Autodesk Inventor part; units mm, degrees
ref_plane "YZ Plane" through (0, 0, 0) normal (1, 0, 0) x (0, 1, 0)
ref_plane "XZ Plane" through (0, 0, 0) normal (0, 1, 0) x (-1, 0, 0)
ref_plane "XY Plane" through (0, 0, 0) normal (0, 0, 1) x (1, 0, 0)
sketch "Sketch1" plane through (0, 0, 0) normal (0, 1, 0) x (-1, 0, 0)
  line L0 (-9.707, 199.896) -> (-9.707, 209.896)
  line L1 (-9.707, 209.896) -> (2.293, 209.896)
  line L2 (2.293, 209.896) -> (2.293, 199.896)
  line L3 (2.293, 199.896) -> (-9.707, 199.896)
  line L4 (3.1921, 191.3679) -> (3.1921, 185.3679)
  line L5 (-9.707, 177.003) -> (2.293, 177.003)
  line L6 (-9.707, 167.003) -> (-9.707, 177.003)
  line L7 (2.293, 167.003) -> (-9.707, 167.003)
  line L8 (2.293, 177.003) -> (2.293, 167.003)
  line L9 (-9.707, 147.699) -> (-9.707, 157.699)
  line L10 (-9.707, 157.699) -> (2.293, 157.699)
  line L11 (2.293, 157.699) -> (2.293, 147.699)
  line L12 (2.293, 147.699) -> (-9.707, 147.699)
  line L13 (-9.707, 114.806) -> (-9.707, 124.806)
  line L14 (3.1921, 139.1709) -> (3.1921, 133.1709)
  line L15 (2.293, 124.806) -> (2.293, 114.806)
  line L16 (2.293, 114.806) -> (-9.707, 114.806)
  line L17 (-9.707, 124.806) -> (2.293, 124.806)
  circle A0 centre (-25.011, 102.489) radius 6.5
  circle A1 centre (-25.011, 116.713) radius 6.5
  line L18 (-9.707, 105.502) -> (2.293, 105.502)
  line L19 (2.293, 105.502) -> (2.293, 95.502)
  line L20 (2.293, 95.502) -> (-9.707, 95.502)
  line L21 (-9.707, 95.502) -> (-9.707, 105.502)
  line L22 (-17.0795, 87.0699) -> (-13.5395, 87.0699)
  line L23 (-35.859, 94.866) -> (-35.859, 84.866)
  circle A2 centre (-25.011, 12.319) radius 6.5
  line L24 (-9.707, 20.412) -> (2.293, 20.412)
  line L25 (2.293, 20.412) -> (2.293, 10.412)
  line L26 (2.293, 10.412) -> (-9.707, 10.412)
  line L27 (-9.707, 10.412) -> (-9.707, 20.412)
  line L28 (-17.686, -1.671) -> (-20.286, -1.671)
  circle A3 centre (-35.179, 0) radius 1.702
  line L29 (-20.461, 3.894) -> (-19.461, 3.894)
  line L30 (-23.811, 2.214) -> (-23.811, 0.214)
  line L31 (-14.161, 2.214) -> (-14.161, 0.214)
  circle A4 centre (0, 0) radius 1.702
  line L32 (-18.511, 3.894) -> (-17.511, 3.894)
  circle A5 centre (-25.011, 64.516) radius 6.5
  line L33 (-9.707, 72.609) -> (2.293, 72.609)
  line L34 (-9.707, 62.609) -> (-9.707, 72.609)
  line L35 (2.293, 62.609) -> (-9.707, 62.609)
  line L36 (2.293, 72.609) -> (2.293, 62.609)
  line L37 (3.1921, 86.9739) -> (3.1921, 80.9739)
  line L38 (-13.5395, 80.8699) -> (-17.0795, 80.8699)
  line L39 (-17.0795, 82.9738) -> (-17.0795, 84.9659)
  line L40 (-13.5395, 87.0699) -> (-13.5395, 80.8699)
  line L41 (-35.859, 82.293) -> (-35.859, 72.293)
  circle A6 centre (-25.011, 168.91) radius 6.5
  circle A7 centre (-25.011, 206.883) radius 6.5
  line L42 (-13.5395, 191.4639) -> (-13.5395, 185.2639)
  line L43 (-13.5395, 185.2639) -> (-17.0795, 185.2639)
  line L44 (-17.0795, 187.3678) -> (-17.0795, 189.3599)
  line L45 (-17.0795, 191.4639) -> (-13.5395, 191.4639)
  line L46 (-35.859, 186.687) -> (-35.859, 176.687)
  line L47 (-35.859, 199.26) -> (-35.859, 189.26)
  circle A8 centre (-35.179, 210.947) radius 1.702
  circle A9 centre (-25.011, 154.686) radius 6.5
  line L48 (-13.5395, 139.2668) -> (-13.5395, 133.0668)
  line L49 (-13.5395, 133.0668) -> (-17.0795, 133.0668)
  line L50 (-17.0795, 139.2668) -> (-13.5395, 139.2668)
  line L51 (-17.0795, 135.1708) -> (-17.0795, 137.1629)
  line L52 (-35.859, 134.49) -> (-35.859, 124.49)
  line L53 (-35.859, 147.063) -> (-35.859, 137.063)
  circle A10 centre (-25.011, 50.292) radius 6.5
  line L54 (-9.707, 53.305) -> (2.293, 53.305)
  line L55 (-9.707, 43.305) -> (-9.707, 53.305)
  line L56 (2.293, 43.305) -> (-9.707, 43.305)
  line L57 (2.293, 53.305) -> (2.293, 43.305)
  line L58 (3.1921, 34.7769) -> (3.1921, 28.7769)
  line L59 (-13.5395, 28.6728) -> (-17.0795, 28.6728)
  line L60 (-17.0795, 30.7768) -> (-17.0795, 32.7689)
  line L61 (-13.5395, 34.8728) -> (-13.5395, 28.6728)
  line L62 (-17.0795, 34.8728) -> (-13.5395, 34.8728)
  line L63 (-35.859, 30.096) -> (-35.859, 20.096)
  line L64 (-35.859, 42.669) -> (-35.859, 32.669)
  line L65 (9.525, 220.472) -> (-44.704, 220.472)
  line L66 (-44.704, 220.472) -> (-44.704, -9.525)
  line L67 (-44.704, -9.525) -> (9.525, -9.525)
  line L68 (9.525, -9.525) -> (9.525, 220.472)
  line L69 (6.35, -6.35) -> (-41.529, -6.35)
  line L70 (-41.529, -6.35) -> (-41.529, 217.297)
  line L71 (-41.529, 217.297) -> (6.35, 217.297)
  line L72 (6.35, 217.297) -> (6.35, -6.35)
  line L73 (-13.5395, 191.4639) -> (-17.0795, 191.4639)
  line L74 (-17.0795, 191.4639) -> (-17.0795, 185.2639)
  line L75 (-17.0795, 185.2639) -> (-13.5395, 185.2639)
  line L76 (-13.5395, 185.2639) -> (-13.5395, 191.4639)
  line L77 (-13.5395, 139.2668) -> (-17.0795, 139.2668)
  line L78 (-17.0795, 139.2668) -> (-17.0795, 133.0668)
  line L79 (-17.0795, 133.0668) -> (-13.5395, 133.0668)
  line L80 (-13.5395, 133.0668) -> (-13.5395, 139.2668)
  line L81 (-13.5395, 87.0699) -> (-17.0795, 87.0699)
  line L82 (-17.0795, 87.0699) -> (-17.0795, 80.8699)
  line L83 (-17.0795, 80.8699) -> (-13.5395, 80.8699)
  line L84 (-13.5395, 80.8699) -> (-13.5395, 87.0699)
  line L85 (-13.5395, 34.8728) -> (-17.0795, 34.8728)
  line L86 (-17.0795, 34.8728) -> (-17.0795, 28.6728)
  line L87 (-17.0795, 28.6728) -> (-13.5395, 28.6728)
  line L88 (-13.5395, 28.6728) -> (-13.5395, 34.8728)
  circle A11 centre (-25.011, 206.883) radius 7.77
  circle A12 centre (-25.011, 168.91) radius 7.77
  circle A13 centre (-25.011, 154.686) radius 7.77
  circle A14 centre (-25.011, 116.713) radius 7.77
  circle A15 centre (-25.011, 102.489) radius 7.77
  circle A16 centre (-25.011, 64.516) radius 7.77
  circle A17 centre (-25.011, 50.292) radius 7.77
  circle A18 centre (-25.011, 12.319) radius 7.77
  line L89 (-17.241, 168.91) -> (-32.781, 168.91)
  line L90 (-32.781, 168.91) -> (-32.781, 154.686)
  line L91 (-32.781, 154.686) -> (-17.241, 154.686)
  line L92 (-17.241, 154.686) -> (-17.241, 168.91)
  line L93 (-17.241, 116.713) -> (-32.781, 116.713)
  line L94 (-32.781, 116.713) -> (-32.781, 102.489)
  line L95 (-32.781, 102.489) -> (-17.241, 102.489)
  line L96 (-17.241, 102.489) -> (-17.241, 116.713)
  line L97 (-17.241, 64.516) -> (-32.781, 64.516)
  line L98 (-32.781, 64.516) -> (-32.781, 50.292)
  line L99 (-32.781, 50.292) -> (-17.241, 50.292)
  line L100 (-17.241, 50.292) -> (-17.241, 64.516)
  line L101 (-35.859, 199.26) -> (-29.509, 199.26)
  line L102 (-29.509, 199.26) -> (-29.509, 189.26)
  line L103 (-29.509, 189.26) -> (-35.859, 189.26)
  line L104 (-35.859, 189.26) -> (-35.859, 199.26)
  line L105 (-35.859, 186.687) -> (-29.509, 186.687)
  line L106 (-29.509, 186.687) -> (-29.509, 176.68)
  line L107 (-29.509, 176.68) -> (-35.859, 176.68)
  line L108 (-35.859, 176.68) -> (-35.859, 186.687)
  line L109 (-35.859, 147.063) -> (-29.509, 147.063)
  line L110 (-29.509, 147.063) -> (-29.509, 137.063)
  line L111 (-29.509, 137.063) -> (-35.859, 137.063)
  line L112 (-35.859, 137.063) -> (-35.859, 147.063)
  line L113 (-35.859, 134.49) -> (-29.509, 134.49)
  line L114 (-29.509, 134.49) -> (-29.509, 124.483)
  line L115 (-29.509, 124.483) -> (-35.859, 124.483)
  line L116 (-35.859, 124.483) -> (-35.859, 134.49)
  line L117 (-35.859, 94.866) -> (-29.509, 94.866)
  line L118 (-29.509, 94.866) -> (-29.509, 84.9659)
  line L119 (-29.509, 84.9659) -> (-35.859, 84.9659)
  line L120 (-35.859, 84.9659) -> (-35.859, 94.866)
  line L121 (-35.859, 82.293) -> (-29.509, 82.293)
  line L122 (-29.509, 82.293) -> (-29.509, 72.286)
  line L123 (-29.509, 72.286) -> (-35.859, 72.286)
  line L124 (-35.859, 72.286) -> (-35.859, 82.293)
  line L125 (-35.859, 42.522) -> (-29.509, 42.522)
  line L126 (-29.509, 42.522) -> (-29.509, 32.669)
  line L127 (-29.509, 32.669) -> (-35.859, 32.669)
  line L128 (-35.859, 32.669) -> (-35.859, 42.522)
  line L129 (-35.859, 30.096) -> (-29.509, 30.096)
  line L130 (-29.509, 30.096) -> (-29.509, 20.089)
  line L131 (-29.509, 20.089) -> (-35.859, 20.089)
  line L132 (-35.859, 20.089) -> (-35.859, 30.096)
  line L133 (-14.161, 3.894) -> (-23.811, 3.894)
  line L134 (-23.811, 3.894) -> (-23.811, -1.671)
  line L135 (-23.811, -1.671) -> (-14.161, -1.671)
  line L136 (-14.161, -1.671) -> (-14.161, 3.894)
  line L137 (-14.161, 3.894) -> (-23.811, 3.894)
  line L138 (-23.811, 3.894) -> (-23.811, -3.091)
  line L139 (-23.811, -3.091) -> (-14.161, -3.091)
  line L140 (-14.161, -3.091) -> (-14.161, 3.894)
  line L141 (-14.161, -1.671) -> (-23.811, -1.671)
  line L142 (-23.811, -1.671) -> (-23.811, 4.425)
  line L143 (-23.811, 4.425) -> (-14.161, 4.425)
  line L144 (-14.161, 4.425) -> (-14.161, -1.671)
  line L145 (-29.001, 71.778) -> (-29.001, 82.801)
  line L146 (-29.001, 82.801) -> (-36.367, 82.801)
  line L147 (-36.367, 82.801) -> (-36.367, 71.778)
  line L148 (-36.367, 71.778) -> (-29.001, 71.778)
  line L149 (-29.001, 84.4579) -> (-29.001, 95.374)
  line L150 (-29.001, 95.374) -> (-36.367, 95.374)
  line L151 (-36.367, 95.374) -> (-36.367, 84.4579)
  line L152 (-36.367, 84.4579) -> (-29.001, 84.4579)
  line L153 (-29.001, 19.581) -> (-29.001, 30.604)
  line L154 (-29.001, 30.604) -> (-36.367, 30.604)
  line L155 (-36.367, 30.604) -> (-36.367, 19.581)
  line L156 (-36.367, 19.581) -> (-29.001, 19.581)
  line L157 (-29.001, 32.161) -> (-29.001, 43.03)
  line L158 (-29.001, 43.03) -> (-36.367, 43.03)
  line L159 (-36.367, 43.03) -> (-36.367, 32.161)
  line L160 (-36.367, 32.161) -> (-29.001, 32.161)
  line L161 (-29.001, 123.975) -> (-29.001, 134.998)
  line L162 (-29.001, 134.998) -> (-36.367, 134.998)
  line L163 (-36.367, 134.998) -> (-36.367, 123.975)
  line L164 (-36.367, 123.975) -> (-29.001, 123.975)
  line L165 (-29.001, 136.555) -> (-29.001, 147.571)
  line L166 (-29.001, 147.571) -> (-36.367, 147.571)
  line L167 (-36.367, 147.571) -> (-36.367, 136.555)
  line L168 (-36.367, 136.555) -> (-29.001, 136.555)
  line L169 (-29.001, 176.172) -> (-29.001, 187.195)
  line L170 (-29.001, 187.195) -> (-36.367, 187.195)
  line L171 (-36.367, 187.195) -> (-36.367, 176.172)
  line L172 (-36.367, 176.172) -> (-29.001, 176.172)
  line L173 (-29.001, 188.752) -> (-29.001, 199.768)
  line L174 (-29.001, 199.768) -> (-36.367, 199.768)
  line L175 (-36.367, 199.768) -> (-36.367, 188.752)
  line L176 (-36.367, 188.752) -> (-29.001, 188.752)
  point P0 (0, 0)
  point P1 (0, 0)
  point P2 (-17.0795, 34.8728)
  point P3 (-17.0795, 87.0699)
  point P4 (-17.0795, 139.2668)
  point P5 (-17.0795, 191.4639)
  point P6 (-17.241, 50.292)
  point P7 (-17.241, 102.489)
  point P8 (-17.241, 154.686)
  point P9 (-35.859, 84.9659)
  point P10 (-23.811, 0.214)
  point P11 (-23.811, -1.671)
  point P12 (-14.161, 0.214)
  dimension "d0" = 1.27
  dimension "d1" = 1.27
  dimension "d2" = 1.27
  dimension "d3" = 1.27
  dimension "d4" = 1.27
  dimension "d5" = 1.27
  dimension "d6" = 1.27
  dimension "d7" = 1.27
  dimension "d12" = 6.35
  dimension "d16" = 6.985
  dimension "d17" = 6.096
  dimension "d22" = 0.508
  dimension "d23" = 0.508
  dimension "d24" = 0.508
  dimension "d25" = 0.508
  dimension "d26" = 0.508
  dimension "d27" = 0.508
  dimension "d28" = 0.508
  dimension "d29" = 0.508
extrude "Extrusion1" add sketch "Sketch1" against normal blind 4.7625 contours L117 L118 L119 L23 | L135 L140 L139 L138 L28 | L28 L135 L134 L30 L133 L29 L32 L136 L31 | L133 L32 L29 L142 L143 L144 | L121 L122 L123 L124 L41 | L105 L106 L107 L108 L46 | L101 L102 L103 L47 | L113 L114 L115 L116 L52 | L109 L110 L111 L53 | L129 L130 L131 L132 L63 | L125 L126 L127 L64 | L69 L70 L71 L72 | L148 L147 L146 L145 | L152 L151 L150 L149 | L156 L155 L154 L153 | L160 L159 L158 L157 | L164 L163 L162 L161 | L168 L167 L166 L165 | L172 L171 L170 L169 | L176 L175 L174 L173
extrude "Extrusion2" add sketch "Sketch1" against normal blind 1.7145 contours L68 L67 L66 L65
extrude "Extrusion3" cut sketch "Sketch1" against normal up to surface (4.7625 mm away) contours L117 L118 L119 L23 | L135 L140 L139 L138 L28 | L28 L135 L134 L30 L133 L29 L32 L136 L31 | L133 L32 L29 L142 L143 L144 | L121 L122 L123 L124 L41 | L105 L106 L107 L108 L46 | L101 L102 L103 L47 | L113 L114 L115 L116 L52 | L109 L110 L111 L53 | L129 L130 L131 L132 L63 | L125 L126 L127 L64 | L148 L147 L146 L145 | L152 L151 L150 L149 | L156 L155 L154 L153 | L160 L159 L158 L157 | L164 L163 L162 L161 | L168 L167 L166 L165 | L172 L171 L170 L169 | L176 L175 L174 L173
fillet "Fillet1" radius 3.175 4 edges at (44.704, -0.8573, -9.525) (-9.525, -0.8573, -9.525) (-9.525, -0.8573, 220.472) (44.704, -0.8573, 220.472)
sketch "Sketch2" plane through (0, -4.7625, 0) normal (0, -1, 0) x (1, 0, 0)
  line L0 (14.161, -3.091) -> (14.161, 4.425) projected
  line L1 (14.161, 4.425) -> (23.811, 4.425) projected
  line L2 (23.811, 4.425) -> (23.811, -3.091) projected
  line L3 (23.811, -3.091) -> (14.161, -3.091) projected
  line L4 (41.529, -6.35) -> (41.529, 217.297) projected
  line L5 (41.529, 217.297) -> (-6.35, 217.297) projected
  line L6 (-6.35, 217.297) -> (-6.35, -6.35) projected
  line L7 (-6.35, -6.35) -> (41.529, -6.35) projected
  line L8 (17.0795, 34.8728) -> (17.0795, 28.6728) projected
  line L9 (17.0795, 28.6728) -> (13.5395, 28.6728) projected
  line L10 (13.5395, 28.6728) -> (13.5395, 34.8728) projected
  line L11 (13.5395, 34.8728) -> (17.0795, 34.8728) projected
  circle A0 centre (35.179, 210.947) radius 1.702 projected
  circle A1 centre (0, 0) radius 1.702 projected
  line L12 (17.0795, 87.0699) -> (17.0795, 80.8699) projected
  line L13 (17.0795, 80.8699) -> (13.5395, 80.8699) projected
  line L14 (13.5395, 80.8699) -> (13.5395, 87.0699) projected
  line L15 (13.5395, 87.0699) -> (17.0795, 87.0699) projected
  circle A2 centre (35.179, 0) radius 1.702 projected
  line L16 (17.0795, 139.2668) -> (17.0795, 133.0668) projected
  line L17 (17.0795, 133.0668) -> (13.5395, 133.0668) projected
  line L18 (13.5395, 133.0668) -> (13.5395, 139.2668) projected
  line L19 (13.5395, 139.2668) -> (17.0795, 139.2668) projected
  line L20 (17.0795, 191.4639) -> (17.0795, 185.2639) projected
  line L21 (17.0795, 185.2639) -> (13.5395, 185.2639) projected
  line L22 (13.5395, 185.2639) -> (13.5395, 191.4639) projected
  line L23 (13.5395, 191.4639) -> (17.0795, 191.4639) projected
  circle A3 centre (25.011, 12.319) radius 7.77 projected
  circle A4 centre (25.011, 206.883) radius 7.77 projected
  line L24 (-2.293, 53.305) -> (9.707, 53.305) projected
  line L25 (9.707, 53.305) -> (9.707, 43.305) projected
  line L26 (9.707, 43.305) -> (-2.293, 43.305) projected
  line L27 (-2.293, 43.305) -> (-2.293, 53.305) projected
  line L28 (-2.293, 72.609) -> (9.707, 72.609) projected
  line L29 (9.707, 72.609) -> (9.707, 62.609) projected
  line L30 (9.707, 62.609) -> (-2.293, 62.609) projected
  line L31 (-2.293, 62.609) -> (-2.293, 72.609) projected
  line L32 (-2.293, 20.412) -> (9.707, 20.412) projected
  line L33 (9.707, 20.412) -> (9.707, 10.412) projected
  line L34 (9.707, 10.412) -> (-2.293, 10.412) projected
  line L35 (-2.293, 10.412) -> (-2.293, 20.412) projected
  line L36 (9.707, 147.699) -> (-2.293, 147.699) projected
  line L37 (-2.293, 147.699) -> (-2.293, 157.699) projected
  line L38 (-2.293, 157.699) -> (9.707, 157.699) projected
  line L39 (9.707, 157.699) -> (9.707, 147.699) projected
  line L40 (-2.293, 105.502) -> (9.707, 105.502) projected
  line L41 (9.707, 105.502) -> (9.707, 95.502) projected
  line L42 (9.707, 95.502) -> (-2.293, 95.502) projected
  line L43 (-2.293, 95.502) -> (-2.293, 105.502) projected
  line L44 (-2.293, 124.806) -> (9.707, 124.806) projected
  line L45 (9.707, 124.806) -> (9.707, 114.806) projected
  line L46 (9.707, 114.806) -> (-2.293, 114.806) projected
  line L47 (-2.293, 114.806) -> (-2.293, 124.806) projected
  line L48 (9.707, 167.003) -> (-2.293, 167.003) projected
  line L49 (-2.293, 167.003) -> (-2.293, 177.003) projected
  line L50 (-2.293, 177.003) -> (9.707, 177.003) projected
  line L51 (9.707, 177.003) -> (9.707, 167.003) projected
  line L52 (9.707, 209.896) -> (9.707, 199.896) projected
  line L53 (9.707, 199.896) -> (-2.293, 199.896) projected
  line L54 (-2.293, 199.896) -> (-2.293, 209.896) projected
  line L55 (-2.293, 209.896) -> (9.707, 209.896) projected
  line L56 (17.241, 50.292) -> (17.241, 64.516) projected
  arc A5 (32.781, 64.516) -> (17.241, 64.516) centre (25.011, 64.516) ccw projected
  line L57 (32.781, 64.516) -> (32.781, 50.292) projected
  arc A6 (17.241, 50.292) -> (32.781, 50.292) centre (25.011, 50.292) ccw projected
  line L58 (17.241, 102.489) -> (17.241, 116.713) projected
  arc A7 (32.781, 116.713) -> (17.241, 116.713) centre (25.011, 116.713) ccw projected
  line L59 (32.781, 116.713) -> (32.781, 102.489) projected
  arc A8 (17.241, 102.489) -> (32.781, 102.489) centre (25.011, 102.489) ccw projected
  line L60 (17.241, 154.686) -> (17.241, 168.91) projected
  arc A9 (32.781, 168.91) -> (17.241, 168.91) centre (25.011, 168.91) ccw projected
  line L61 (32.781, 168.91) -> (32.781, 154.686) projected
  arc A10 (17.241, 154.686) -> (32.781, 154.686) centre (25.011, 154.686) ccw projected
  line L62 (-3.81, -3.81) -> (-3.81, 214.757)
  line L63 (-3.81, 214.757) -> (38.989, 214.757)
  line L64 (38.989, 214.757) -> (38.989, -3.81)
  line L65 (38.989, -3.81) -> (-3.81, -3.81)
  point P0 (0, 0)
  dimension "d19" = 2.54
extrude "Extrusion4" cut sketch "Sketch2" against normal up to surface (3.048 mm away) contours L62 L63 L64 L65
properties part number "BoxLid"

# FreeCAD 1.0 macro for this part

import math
import FreeCAD as App
import Part
import Sketcher
from FreeCAD import Vector
Q = App.Units.Quantity


def edges_at(feature, points):
    """Names of the edges that pass closest to the given points."""
    edges = feature.Shape.Edges
    near = lambda p: min(range(len(edges)), key=lambda i: edges[i].distToShape(Part.Vertex(*p))[0])
    return sorted({f"Edge{near(p) + 1}" for p in points})


def add_polygon(sketch, points):
    """Adds a closed chain of lines whose ends are joined by coincident constraints."""
    first, n = sketch.GeometryCount, len(points)
    for a, b in zip(points, points[1:] + points[:1]):
        sketch.addGeometry(Part.LineSegment(App.Vector(*a, 0), App.Vector(*b, 0)), False)
    for i in range(n):
        sketch.addConstraint(Sketcher.Constraint("Coincident", first + i, 2, first + (i + 1) % n, 1))

doc = App.newDocument("Part")
body = doc.addObject("PartDesign::Body", "Body")

# Sketch on XZ plane
sketch1 = body.newObject("Sketcher::SketchObject", "Sketch")
sketch1.AttachmentSupport = (doc.getObject("XZ_Plane"), [""])
sketch1.MapMode = "FlatFace"
add_polygon(sketch1, [(41.529, -6.35), (-6.35, -6.35), (-6.35, 217.297), (41.529, 217.297)])  # lines 0-3
sketch1.addGeometry(Part.Circle(Vector(35.179, 0, 0), Vector(0, 0, 1), 1.702), False)  # 4
sketch1.addGeometry(Part.Circle(Vector(25.011, 12.319, 0), Vector(0, 0, 1), 7.77), False)  # 5
add_polygon(sketch1, [(-2.293, 199.896), (9.707, 199.896), (9.707, 209.896), (-2.293, 209.896)])  # lines 6-9
sketch1.addGeometry(Part.ArcOfCircle(Part.Circle(Vector(25.011, 64.516, 0), Vector(0, 0, 1), 7.77), math.radians(0), math.radians(180)), False)  # 10
sketch1.addGeometry(Part.LineSegment(Vector(17.241, 64.516, 0), Vector(17.241, 50.292, 0)), False)  # 11
sketch1.addGeometry(Part.ArcOfCircle(Part.Circle(Vector(25.011, 50.292, 0), Vector(0, 0, 1), 7.77), math.radians(180), math.radians(360)), False)  # 12
sketch1.addGeometry(Part.LineSegment(Vector(32.781, 50.292, 0), Vector(32.781, 64.516, 0)), False)  # 13
add_polygon(sketch1, [(13.5395, 34.8728), (13.5395, 28.6728), (17.0795, 28.6728), (17.0795, 34.8728)])  # lines 14-17
sketch1.addGeometry(Part.Circle(Vector(0, 0, 0), Vector(0, 0, 1), 1.702), False)  # 18
add_polygon(sketch1, [(9.707, 10.412), (9.707, 20.412), (-2.293, 20.412), (-2.293, 10.412)])  # lines 19-22
add_polygon(sketch1, [(17.0795, 87.0699), (13.5395, 87.0699), (13.5395, 80.8699), (17.0795, 80.8699)])  # lines 23-26
add_polygon(sketch1, [(9.707, 43.305), (9.707, 53.305), (-2.293, 53.305), (-2.293, 43.305)])  # lines 27-30
add_polygon(sketch1, [(9.707, 62.609), (9.707, 72.609), (-2.293, 72.609), (-2.293, 62.609)])  # lines 31-34
add_polygon(sketch1, [(9.707, 95.502), (9.707, 105.502), (-2.293, 105.502), (-2.293, 95.502)])  # lines 35-38
sketch1.addGeometry(Part.LineSegment(Vector(17.241, 116.713, 0), Vector(17.241, 102.489, 0)), False)  # 39
sketch1.addGeometry(Part.ArcOfCircle(Part.Circle(Vector(25.011, 102.489, 0), Vector(0, 0, 1), 7.77), math.radians(180), math.radians(360)), False)  # 40
sketch1.addGeometry(Part.LineSegment(Vector(32.781, 102.489, 0), Vector(32.781, 116.713, 0)), False)  # 41
sketch1.addGeometry(Part.ArcOfCircle(Part.Circle(Vector(25.011, 116.713, 0), Vector(0, 0, 1), 7.77), math.radians(0), math.radians(180)), False)  # 42
sketch1.addGeometry(Part.ArcOfCircle(Part.Circle(Vector(25.011, 168.91, 0), Vector(0, 0, 1), 7.77), math.radians(0), math.radians(180)), False)  # 43
sketch1.addGeometry(Part.LineSegment(Vector(17.241, 168.91, 0), Vector(17.241, 154.686, 0)), False)  # 44
sketch1.addGeometry(Part.ArcOfCircle(Part.Circle(Vector(25.011, 154.686, 0), Vector(0, 0, 1), 7.77), math.radians(180), math.radians(360)), False)  # 45
sketch1.addGeometry(Part.LineSegment(Vector(32.781, 154.686, 0), Vector(32.781, 168.91, 0)), False)  # 46
sketch1.addGeometry(Part.Circle(Vector(35.179, 210.947, 0), Vector(0, 0, 1), 1.702), False)  # 47
sketch1.addGeometry(Part.Circle(Vector(25.011, 206.883, 0), Vector(0, 0, 1), 7.77), False)  # 48
add_polygon(sketch1, [(17.0795, 139.2668), (13.5395, 139.2668), (13.5395, 133.0668), (17.0795, 133.0668)])  # lines 49-52
add_polygon(sketch1, [(-2.293, 114.806), (9.707, 114.806), (9.707, 124.806), (-2.293, 124.806)])  # lines 53-56
add_polygon(sketch1, [(-2.293, 147.699), (9.707, 147.699), (9.707, 157.699), (-2.293, 157.699)])  # lines 57-60
add_polygon(sketch1, [(17.0795, 191.4639), (13.5395, 191.4639), (13.5395, 185.2639), (17.0795, 185.2639)])  # lines 61-64
add_polygon(sketch1, [(9.707, 167.003), (9.707, 177.003), (-2.293, 177.003), (-2.293, 167.003)])  # lines 65-68
sketch1.addConstraint(Sketcher.Constraint("Tangent", 10, 2, 11, 1))
sketch1.addConstraint(Sketcher.Constraint("Tangent", 11, 2, 12, 1))
sketch1.addConstraint(Sketcher.Constraint("Tangent", 12, 2, 13, 1))
sketch1.addConstraint(Sketcher.Constraint("Tangent", 13, 2, 10, 1))
sketch1.addConstraint(Sketcher.Constraint("Tangent", 39, 2, 40, 1))
sketch1.addConstraint(Sketcher.Constraint("Tangent", 40, 2, 41, 1))
sketch1.addConstraint(Sketcher.Constraint("Tangent", 41, 2, 42, 1))
sketch1.addConstraint(Sketcher.Constraint("Tangent", 42, 2, 39, 1))
sketch1.addConstraint(Sketcher.Constraint("Tangent", 43, 2, 44, 1))
sketch1.addConstraint(Sketcher.Constraint("Tangent", 44, 2, 45, 1))
sketch1.addConstraint(Sketcher.Constraint("Tangent", 45, 2, 46, 1))
sketch1.addConstraint(Sketcher.Constraint("Tangent", 46, 2, 43, 1))
sketch1.addConstraint(Sketcher.Constraint("Horizontal", 0))
sketch1.addConstraint(Sketcher.Constraint("Vertical", 1))
sketch1.addConstraint(Sketcher.Constraint("Horizontal", 2))
sketch1.addConstraint(Sketcher.Constraint("Vertical", 3))
sketch1.addConstraint(Sketcher.Constraint("Horizontal", 6))
sketch1.addConstraint(Sketcher.Constraint("Vertical", 7))
sketch1.addConstraint(Sketcher.Constraint("Horizontal", 8))
sketch1.addConstraint(Sketcher.Constraint("Vertical", 9))
sketch1.addConstraint(Sketcher.Constraint("Vertical", 11))
sketch1.addConstraint(Sketcher.Constraint("Vertical", 13))
sketch1.addConstraint(Sketcher.Constraint("Vertical", 14))
sketch1.addConstraint(Sketcher.Constraint("Horizontal", 15))
sketch1.addConstraint(Sketcher.Constraint("Vertical", 16))
sketch1.addConstraint(Sketcher.Constraint("Horizontal", 17))
sketch1.addConstraint(Sketcher.Constraint("Vertical", 19))
sketch1.addConstraint(Sketcher.Constraint("Horizontal", 20))
sketch1.addConstraint(Sketcher.Constraint("Vertical", 21))
sketch1.addConstraint(Sketcher.Constraint("Horizontal", 22))
sketch1.addConstraint(Sketcher.Constraint("Horizontal", 23))
sketch1.addConstraint(Sketcher.Constraint("Vertical", 24))
sketch1.addConstraint(Sketcher.Constraint("Horizontal", 25))
sketch1.addConstraint(Sketcher.Constraint("Vertical", 26))
sketch1.addConstraint(Sketcher.Constraint("Vertical", 27))
sketch1.addConstraint(Sketcher.Constraint("Horizontal", 28))
sketch1.addConstraint(Sketcher.Constraint("Vertical", 29))
sketch1.addConstraint(Sketcher.Constraint("Horizontal", 30))
sketch1.addConstraint(Sketcher.Constraint("Vertical", 31))
sketch1.addConstraint(Sketcher.Constraint("Horizontal", 32))
sketch1.addConstraint(Sketcher.Constraint("Vertical", 33))
sketch1.addConstraint(Sketcher.Constraint("Horizontal", 34))
sketch1.addConstraint(Sketcher.Constraint("Vertical", 35))
sketch1.addConstraint(Sketcher.Constraint("Horizontal", 36))
sketch1.addConstraint(Sketcher.Constraint("Vertical", 37))
sketch1.addConstraint(Sketcher.Constraint("Horizontal", 38))
sketch1.addConstraint(Sketcher.Constraint("Vertical", 39))
sketch1.addConstraint(Sketcher.Constraint("Vertical", 41))
sketch1.addConstraint(Sketcher.Constraint("Vertical", 44))
sketch1.addConstraint(Sketcher.Constraint("Vertical", 46))
sketch1.addConstraint(Sketcher.Constraint("Horizontal", 49))
sketch1.addConstraint(Sketcher.Constraint("Vertical", 50))
sketch1.addConstraint(Sketcher.Constraint("Horizontal", 51))
sketch1.addConstraint(Sketcher.Constraint("Vertical", 52))
sketch1.addConstraint(Sketcher.Constraint("Horizontal", 53))
sketch1.addConstraint(Sketcher.Constraint("Vertical", 54))
sketch1.addConstraint(Sketcher.Constraint("Horizontal", 55))
sketch1.addConstraint(Sketcher.Constraint("Vertical", 56))
sketch1.addConstraint(Sketcher.Constraint("Horizontal", 57))
sketch1.addConstraint(Sketcher.Constraint("Vertical", 58))
sketch1.addConstraint(Sketcher.Constraint("Horizontal", 59))
sketch1.addConstraint(Sketcher.Constraint("Vertical", 60))
sketch1.addConstraint(Sketcher.Constraint("Horizontal", 61))
sketch1.addConstraint(Sketcher.Constraint("Vertical", 62))
sketch1.addConstraint(Sketcher.Constraint("Horizontal", 63))
sketch1.addConstraint(Sketcher.Constraint("Vertical", 64))
sketch1.addConstraint(Sketcher.Constraint("Vertical", 65))
sketch1.addConstraint(Sketcher.Constraint("Horizontal", 66))
sketch1.addConstraint(Sketcher.Constraint("Vertical", 67))
sketch1.addConstraint(Sketcher.Constraint("Horizontal", 68))
sketch1.addConstraint(Sketcher.Constraint("Coincident", 18, 3, -1, 1))
sketch1.addConstraint(Sketcher.Constraint("Equal", 5, 10))
sketch1.addConstraint(Sketcher.Constraint("Equal", 4, 18))
sketch1.addConstraint(Sketcher.Constraint("Equal", 12, 40))
sketch1.addConstraint(Sketcher.Constraint("Equal", 42, 43))
sketch1.addConstraint(Sketcher.Constraint("Equal", 18, 47))
sketch1.addConstraint(Sketcher.Constraint("Equal", 45, 48))
sketch1.addConstraint(Sketcher.Constraint("PointOnObject", 4, 3, -1))
sketch1.addConstraint(Sketcher.Constraint("Vertical", 5, 3, 10, 3))
sketch1.addConstraint(Sketcher.Constraint("Vertical", 12, 3, 40, 3))
sketch1.addConstraint(Sketcher.Constraint("Vertical", 42, 3, 43, 3))
sketch1.addConstraint(Sketcher.Constraint("Vertical", 4, 3, 47, 3))
sketch1.addConstraint(Sketcher.Constraint("Vertical", 45, 3, 48, 3))
sketch1.addConstraint(Sketcher.Constraint("Vertical", 7, 2, 19, 2))
sketch1.addConstraint(Sketcher.Constraint("Vertical", 9, 2, 20, 2))
sketch1.addConstraint(Sketcher.Constraint("Vertical", 17, 2, 23, 2))
sketch1.addConstraint(Sketcher.Constraint("Vertical", 16, 2, 25, 2))
sketch1.addConstraint(Sketcher.Constraint("Vertical", 22, 2, 27, 2))
sketch1.addConstraint(Sketcher.Constraint("Vertical", 21, 2, 28, 2))
sketch1.addConstraint(Sketcher.Constraint("Vertical", 30, 2, 31, 2))
sketch1.addConstraint(Sketcher.Constraint("Vertical", 29, 2, 32, 2))
sketch1.addConstraint(Sketcher.Constraint("Vertical", 34, 2, 35, 2))
sketch1.addConstraint(Sketcher.Constraint("Vertical", 33, 2, 36, 2))
sketch1.addConstraint(Sketcher.Constraint("Vertical", 24, 2, 49, 2))
sketch1.addConstraint(Sketcher.Constraint("Vertical", 26, 2, 51, 2))
sketch1.addConstraint(Sketcher.Constraint("Vertical", 38, 2, 53, 2))
sketch1.addConstraint(Sketcher.Constraint("Vertical", 37, 2, 55, 2))
sketch1.addConstraint(Sketcher.Constraint("Vertical", 54, 2, 57, 2))
sketch1.addConstraint(Sketcher.Constraint("Vertical", 56, 2, 59, 2))
sketch1.addConstraint(Sketcher.Constraint("Vertical", 50, 2, 61, 2))
sketch1.addConstraint(Sketcher.Constraint("Vertical", 52, 2, 63, 2))
sketch1.addConstraint(Sketcher.Constraint("Vertical", 58, 2, 65, 2))
sketch1.addConstraint(Sketcher.Constraint("Vertical", 60, 2, 66, 2))
sketch1.addConstraint(Sketcher.Constraint("Equal", 9, 19))
sketch1.addConstraint(Sketcher.Constraint("Equal", 16, 24))
sketch1.addConstraint(Sketcher.Constraint("Equal", 21, 27))
sketch1.addConstraint(Sketcher.Constraint("Equal", 29, 31))
sketch1.addConstraint(Sketcher.Constraint("Equal", 33, 35))
sketch1.addConstraint(Sketcher.Constraint("Equal", 13, 39))
sketch1.addConstraint(Sketcher.Constraint("Equal", 41, 44))
sketch1.addConstraint(Sketcher.Constraint("Equal", 26, 50))
sketch1.addConstraint(Sketcher.Constraint("Equal", 37, 54))
sketch1.addConstraint(Sketcher.Constraint("Equal", 56, 58))
sketch1.addConstraint(Sketcher.Constraint("Equal", 52, 62))
sketch1.addConstraint(Sketcher.Constraint("Equal", 60, 65))
sketch1.addConstraint(Sketcher.Constraint("DistanceX", 0, 2, -1, 1, Q("0.25 in")))
sketch1.addConstraint(Sketcher.Constraint("DistanceY", 0, 2, -1, 1, Q("0.25 in")))
sketch1.addConstraint(Sketcher.Constraint("Diameter", 5, Q("0.6118 in")))
sketch1.addConstraint(Sketcher.Constraint("DistanceY", 11, 2, 11, 1, Q("0.56 in")))
sketch1.addConstraint(Sketcher.Constraint("Diameter", 4, 3.404))
sketch1.addConstraint(Sketcher.Constraint("DistanceX", 0, 2, 0, 1, Q("1.885 in")))
sketch1.addConstraint(Sketcher.Constraint("DistanceY", 1, 1, 1, 2, Q("8.805 in")))
sketch1.addConstraint(Sketcher.Constraint("DistanceY", -1, 1, 10, 3, Q("2.54 in")))
sketch1.addConstraint(Sketcher.Constraint("DistanceY", -1, 1, 43, 3, Q("6.65 in")))
sketch1.addConstraint(Sketcher.Constraint("DistanceY", 7, 1, 7, 2, Q("0.3937 in")))
sketch1.addConstraint(Sketcher.Constraint("DistanceY", 14, 2, 14, 1, Q("0.2441 in")))
sketch1.addConstraint(Sketcher.Constraint("DistanceX", -1, 1, 4, 3, Q("1.385 in")))
sketch1.addConstraint(Sketcher.Constraint("DistanceY", -1, 1, 5, 3, Q("0.485 in")))
sketch1.addConstraint(Sketcher.Constraint("DistanceY", -1, 1, 40, 3, Q("4.035 in")))
sketch1.addConstraint(Sketcher.Constraint("DistanceY", -1, 1, 47, 3, Q("8.305 in")))
sketch1.addConstraint(Sketcher.Constraint("DistanceY", -1, 1, 48, 3, Q("8.145 in")))
sketch1.addConstraint(Sketcher.Constraint("DistanceX", 6, 1, 6, 2, 12.0))
sketch1.addConstraint(Sketcher.Constraint("DistanceX", 15, 1, 15, 2, 3.54))
sketch1.addConstraint(Sketcher.Constraint("DistanceX", -1, 1, 12, 2, Q("1.2906 in")))
sketch1.addConstraint(Sketcher.Constraint("DistanceX", -1, 1, 6, 2, 9.707))
sketch1.addConstraint(Sketcher.Constraint("DistanceY", -1, 1, 6, 2, 199.896))
sketch1.addConstraint(Sketcher.Constraint("DistanceX", -1, 1, 14, 2, 13.5395))
sketch1.addConstraint(Sketcher.Constraint("DistanceY", -1, 1, 14, 2, 28.6728))
sketch1.addConstraint(Sketcher.Constraint("DistanceY", -1, 1, 19, 2, 20.412))
sketch1.addConstraint(Sketcher.Constraint("DistanceY", -1, 1, 23, 2, 87.07))
sketch1.addConstraint(Sketcher.Constraint("DistanceY", -1, 1, 27, 2, 53.305))
sketch1.addConstraint(Sketcher.Constraint("DistanceY", -1, 1, 31, 2, 72.609))
sketch1.addConstraint(Sketcher.Constraint("DistanceY", -1, 1, 35, 2, 105.502))
sketch1.addConstraint(Sketcher.Constraint("DistanceY", -1, 1, 49, 2, 139.2668))
sketch1.addConstraint(Sketcher.Constraint("DistanceY", -1, 1, 53, 2, 114.806))
sketch1.addConstraint(Sketcher.Constraint("DistanceY", -1, 1, 57, 2, 147.699))
sketch1.addConstraint(Sketcher.Constraint("DistanceY", -1, 1, 61, 2, 191.464))
sketch1.addConstraint(Sketcher.Constraint("DistanceY", -1, 1, 65, 2, 177.003))
pad1 = body.newObject("PartDesign::Pad", "Pad")
pad1.Profile = sketch1
pad1.Length = Q("0.1875 in")

# Sketch on XZ plane
sketch2 = body.newObject("Sketcher::SketchObject", "Sketch001")
sketch2.AttachmentSupport = (doc.getObject("XZ_Plane"), [""])
sketch2.MapMode = "FlatFace"
add_polygon(sketch2, [(-9.525, -9.525), (-9.525, 220.472), (44.704, 220.472), (44.704, -9.525)])  # lines 0-3
add_polygon(sketch2, [(-6.35, 217.297), (-6.35, -6.35), (41.529, -6.35), (41.529, 217.297)])  # lines 4-7
sketch2.addConstraint(Sketcher.Constraint("Vertical", 0))
sketch2.addConstraint(Sketcher.Constraint("Horizontal", 1))
sketch2.addConstraint(Sketcher.Constraint("Vertical", 2))
sketch2.addConstraint(Sketcher.Constraint("Horizontal", 3))
sketch2.addConstraint(Sketcher.Constraint("Vertical", 4))
sketch2.addConstraint(Sketcher.Constraint("Horizontal", 5))
sketch2.addConstraint(Sketcher.Constraint("Vertical", 6))
sketch2.addConstraint(Sketcher.Constraint("Horizontal", 7))
sketch2.addConstraint(Sketcher.Constraint("DistanceX", 4, 2, -1, 1, Q("0.25 in")))
sketch2.addConstraint(Sketcher.Constraint("DistanceY", 4, 2, -1, 1, Q("0.25 in")))
sketch2.addConstraint(Sketcher.Constraint("DistanceX", 1, 1, 1, 2, Q("2.135 in")))
sketch2.addConstraint(Sketcher.Constraint("DistanceX", 5, 1, 5, 2, Q("1.885 in")))
sketch2.addConstraint(Sketcher.Constraint("DistanceY", 0, 1, 0, 2, Q("9.055 in")))
sketch2.addConstraint(Sketcher.Constraint("DistanceY", 4, 2, 4, 1, Q("8.805 in")))
sketch2.addConstraint(Sketcher.Constraint("DistanceY", -1, 1, 0, 2, Q("8.68 in")))
sketch2.addConstraint(Sketcher.Constraint("DistanceX", -1, 1, 1, 2, Q("1.76 in")))
pad2 = body.newObject("PartDesign::Pad", "Pad001")
pad2.Profile = sketch2
pad2.Length = Q("0.0675 in")

# Sketch on XZ plane
sketch3 = body.newObject("Sketcher::SketchObject", "Sketch002")
sketch3.AttachmentSupport = (doc.getObject("XZ_Plane"), [""])
sketch3.MapMode = "FlatFace"
add_polygon(sketch3, [(36.367, 84.4579), (29.001, 84.4579), (29.001, 95.374), (36.367, 95.374)])  # lines 0-3
add_polygon(sketch3, [(14.161, -3.091), (14.161, 4.425), (23.811, 4.425), (23.811, -3.091)])  # lines 4-7
add_polygon(sketch3, [(36.367, 71.778), (29.001, 71.778), (29.001, 82.801), (36.367, 82.801)])  # lines 8-11
add_polygon(sketch3, [(36.367, 176.172), (29.001, 176.172), (29.001, 187.195), (36.367, 187.195)])  # lines 12-15
add_polygon(sketch3, [(36.367, 188.752), (29.001, 188.752), (29.001, 199.768), (36.367, 199.768)])  # lines 16-19
add_polygon(sketch3, [(36.367, 123.975), (29.001, 123.975), (29.001, 134.998), (36.367, 134.998)])  # lines 20-23
add_polygon(sketch3, [(36.367, 136.555), (29.001, 136.555), (29.001, 147.571), (36.367, 147.571)])  # lines 24-27
add_polygon(sketch3, [(36.367, 19.581), (29.001, 19.581), (29.001, 30.604), (36.367, 30.604)])  # lines 28-31
add_polygon(sketch3, [(36.367, 32.161), (29.001, 32.161), (29.001, 43.03), (36.367, 43.03)])  # lines 32-35
sketch3.addConstraint(Sketcher.Constraint("Horizontal", 0))
sketch3.addConstraint(Sketcher.Constraint("Vertical", 1))
sketch3.addConstraint(Sketcher.Constraint("Horizontal", 2))
sketch3.addConstraint(Sketcher.Constraint("Vertical", 3))
sketch3.addConstraint(Sketcher.Constraint("Vertical", 4))
sketch3.addConstraint(Sketcher.Constraint("Horizontal", 5))
sketch3.addConstraint(Sketcher.Constraint("Vertical", 6))
sketch3.addConstraint(Sketcher.Constraint("Horizontal", 7))
sketch3.addConstraint(Sketcher.Constraint("Horizontal", 8))
sketch3.addConstraint(Sketcher.Constraint("Vertical", 9))
sketch3.addConstraint(Sketcher.Constraint("Horizontal", 10))
sketch3.addConstraint(Sketcher.Constraint("Vertical", 11))
sketch3.addConstraint(Sketcher.Constraint("Horizontal", 12))
sketch3.addConstraint(Sketcher.Constraint("Vertical", 13))
sketch3.addConstraint(Sketcher.Constraint("Horizontal", 14))
sketch3.addConstraint(Sketcher.Constraint("Vertical", 15))
sketch3.addConstraint(Sketcher.Constraint("Horizontal", 16))
sketch3.addConstraint(Sketcher.Constraint("Vertical", 17))
sketch3.addConstraint(Sketcher.Constraint("Horizontal", 18))
sketch3.addConstraint(Sketcher.Constraint("Vertical", 19))
sketch3.addConstraint(Sketcher.Constraint("Horizontal", 20))
sketch3.addConstraint(Sketcher.Constraint("Vertical", 21))
sketch3.addConstraint(Sketcher.Constraint("Horizontal", 22))
sketch3.addConstraint(Sketcher.Constraint("Vertical", 23))
sketch3.addConstraint(Sketcher.Constraint("Horizontal", 24))
sketch3.addConstraint(Sketcher.Constraint("Vertical", 25))
sketch3.addConstraint(Sketcher.Constraint("Horizontal", 26))
sketch3.addConstraint(Sketcher.Constraint("Vertical", 27))
sketch3.addConstraint(Sketcher.Constraint("Horizontal", 28))
sketch3.addConstraint(Sketcher.Constraint("Vertical", 29))
sketch3.addConstraint(Sketcher.Constraint("Horizontal", 30))
sketch3.addConstraint(Sketcher.Constraint("Vertical", 31))
sketch3.addConstraint(Sketcher.Constraint("Horizontal", 32))
sketch3.addConstraint(Sketcher.Constraint("Vertical", 33))
sketch3.addConstraint(Sketcher.Constraint("Horizontal", 34))
sketch3.addConstraint(Sketcher.Constraint("Vertical", 35))
sketch3.addConstraint(Sketcher.Constraint("Vertical", 1, 2, 8, 2))
sketch3.addConstraint(Sketcher.Constraint("Vertical", 3, 2, 10, 2))
sketch3.addConstraint(Sketcher.Constraint("Vertical", 9, 2, 12, 2))
sketch3.addConstraint(Sketcher.Constraint("Vertical", 11, 2, 14, 2))
sketch3.addConstraint(Sketcher.Constraint("Vertical", 13, 2, 16, 2))
sketch3.addConstraint(Sketcher.Constraint("Vertical", 15, 2, 18, 2))
sketch3.addConstraint(Sketcher.Constraint("Vertical", 17, 2, 20, 2))
sketch3.addConstraint(Sketcher.Constraint("Vertical", 19, 2, 22, 2))
sketch3.addConstraint(Sketcher.Constraint("Vertical", 21, 2, 24, 2))
sketch3.addConstraint(Sketcher.Constraint("Vertical", 23, 2, 26, 2))
sketch3.addConstraint(Sketcher.Constraint("Vertical", 25, 2, 28, 2))
sketch3.addConstraint(Sketcher.Constraint("Vertical", 27, 2, 30, 2))
sketch3.addConstraint(Sketcher.Constraint("Vertical", 29, 2, 32, 2))
sketch3.addConstraint(Sketcher.Constraint("Vertical", 31, 2, 34, 2))
sketch3.addConstraint(Sketcher.Constraint("Equal", 11, 13))
sketch3.addConstraint(Sketcher.Constraint("Equal", 15, 21))
sketch3.addConstraint(Sketcher.Constraint("Equal", 19, 25))
sketch3.addConstraint(Sketcher.Constraint("Equal", 23, 29))
sketch3.addConstraint(Sketcher.Constraint("DistanceX", 0, 2, 0, 1, Q("0.29 in")))
sketch3.addConstraint(Sketcher.Constraint("DistanceY", 1, 2, 21, 2, Q("1.56 in")))
sketch3.addConstraint(Sketcher.Constraint("DistanceY", 4, 1, 4, 2, Q("0.2959 in")))
sketch3.addConstraint(Sketcher.Constraint("DistanceY", 17, 1, 17, 2, Q("0.4337 in")))
sketch3.addConstraint(Sketcher.Constraint("DistanceY", 9, 2, 1, 2, Q("0.495 in")))
sketch3.addConstraint(Sketcher.Constraint("DistanceY", 1, 2, 13, 2, Q("3.615 in")))
sketch3.addConstraint(Sketcher.Constraint("DistanceY", 13, 2, 17, 2, Q("0.495 in")))
sketch3.addConstraint(Sketcher.Constraint("DistanceY", 21, 2, 25, 2, Q("0.495 in")))
sketch3.addConstraint(Sketcher.Constraint("DistanceY", 28, 2, 8, 2, Q("2.055 in")))
sketch3.addConstraint(Sketcher.Constraint("DistanceX", 5, 1, 5, 2, 9.65))
sketch3.addConstraint(Sketcher.Constraint("DistanceY", 1, 1, 1, 2, 10.916))
sketch3.addConstraint(Sketcher.Constraint("DistanceY", 9, 1, 9, 2, 11.023))
sketch3.addConstraint(Sketcher.Constraint("DistanceY", 33, 1, 33, 2, 10.869))
sketch3.addConstraint(Sketcher.Constraint("DistanceY", 6, 2, -1, 1, Q("0.1217 in")))
sketch3.addConstraint(Sketcher.Constraint("DistanceY", -1, 1, 8, 2, Q("2.8259 in")))
sketch3.addConstraint(Sketcher.Constraint("DistanceY", -1, 1, 33, 2, Q("1.6941 in")))
sketch3.addConstraint(Sketcher.Constraint("DistanceX", -1, 1, 0, 2, 29.001))
sketch3.addConstraint(Sketcher.Constraint("DistanceX", -1, 1, 4, 2, 14.161))
pocket1 = body.newObject("PartDesign::Pocket", "Pocket")
pocket1.Profile = sketch3
pocket1.Length = Q("0.1875 in")
pocket1.Reversed = True
doc.recompute()

fillet = body.newObject("PartDesign::Fillet", "Fillet")
fillet.Base = (pocket1, edges_at(pocket1, [
    (44.704, -0.857, -9.525),
    (-9.525, -0.857, -9.525),
    (-9.525, -0.857, 220.472),
    (44.704, -0.857, 220.472),
]))
fillet.Radius = Q("0.125 in")

# Sketch on XZ plane
sketch4 = body.newObject("Sketcher::SketchObject", "Sketch003")
sketch4.AttachmentSupport = (doc.getObject("XZ_Plane"), [""])
sketch4.MapMode = "FlatFace"
sketch4.AttachmentOffset = App.Placement(Vector(0, 0, 0.1875 * 25.4), App.Rotation())
add_polygon(sketch4, [(-3.81, 214.757), (-3.81, -3.81), (38.989, -3.81), (38.989, 214.757)])  # lines 0-3
sketch4.addGeometry(Part.Circle(Vector(0, 0, 0), Vector(0, 0, 1), 1.702), False)  # 4
add_polygon(sketch4, [(-2.293, 10.412), (-2.293, 20.412), (9.707, 20.412), (9.707, 10.412)])  # lines 5-8
add_polygon(sketch4, [(-2.293, 43.305), (-2.293, 53.305), (9.707, 53.305), (9.707, 43.305)])  # lines 9-12
add_polygon(sketch4, [(13.5395, 34.8728), (17.0795, 34.8728), (17.0795, 28.6728), (13.5395, 28.6728)])  # lines 13-16
add_polygon(sketch4, [(-2.293, 62.609), (-2.293, 72.609), (9.707, 72.609), (9.707, 62.609)])  # lines 17-20
add_polygon(sketch4, [(-2.293, 95.502), (-2.293, 105.502), (9.707, 105.502), (9.707, 95.502)])  # lines 21-24
add_polygon(sketch4, [(13.5395, 87.0699), (17.0795, 87.0699), (17.0795, 80.8699), (13.5395, 80.8699)])  # lines 25-28
add_polygon(sketch4, [(23.811, -3.091), (14.161, -3.091), (14.161, 4.425), (23.811, 4.425)])  # lines 29-32
sketch4.addGeometry(Part.Circle(Vector(25.011, 12.319, 0), Vector(0, 0, 1), 7.77), False)  # 33
sketch4.addGeometry(Part.Circle(Vector(35.179, 0, 0), Vector(0, 0, 1), 1.702), False)  # 34
sketch4.addGeometry(Part.ArcOfCircle(Part.Circle(Vector(25.011, 50.292, 0), Vector(0, 0, 1), 7.77), math.radians(180), math.radians(360)), False)  # 35
sketch4.addGeometry(Part.LineSegment(Vector(17.241, 50.292, 0), Vector(17.241, 64.516, 0)), False)  # 36
sketch4.addGeometry(Part.ArcOfCircle(Part.Circle(Vector(25.011, 64.516, 0), Vector(0, 0, 1), 7.77), math.radians(0), math.radians(180)), False)  # 37
sketch4.addGeometry(Part.LineSegment(Vector(32.781, 64.516, 0), Vector(32.781, 50.292, 0)), False)  # 38
add_polygon(sketch4, [(-2.293, 114.806), (-2.293, 124.806), (9.707, 124.806), (9.707, 114.806)])  # lines 39-42
add_polygon(sketch4, [(9.707, 157.699), (9.707, 147.699), (-2.293, 147.699), (-2.293, 157.699)])  # lines 43-46
add_polygon(sketch4, [(13.5395, 139.2668), (17.0795, 139.2668), (17.0795, 133.0668), (13.5395, 133.0668)])  # lines 47-50
add_polygon(sketch4, [(9.707, 177.003), (9.707, 167.003), (-2.293, 167.003), (-2.293, 177.003)])  # lines 51-54
add_polygon(sketch4, [(-2.293, 209.896), (9.707, 209.896), (9.707, 199.896), (-2.293, 199.896)])  # lines 55-58
add_polygon(sketch4, [(13.5395, 191.4639), (17.0795, 191.4639), (17.0795, 185.2639), (13.5395, 185.2639)])  # lines 59-62
sketch4.addGeometry(Part.ArcOfCircle(Part.Circle(Vector(25.011, 102.489, 0), Vector(0, 0, 1), 7.77), math.radians(180), math.radians(360)), False)  # 63
sketch4.addGeometry(Part.LineSegment(Vector(17.241, 102.489, 0), Vector(17.241, 116.713, 0)), False)  # 64
sketch4.addGeometry(Part.ArcOfCircle(Part.Circle(Vector(25.011, 116.713, 0), Vector(0, 0, 1), 7.77), math.radians(0), math.radians(180)), False)  # 65
sketch4.addGeometry(Part.LineSegment(Vector(32.781, 116.713, 0), Vector(32.781, 102.489, 0)), False)  # 66
sketch4.addGeometry(Part.ArcOfCircle(Part.Circle(Vector(25.011, 154.686, 0), Vector(0, 0, 1), 7.77), math.radians(180), math.radians(360)), False)  # 67
sketch4.addGeometry(Part.LineSegment(Vector(17.241, 154.686, 0), Vector(17.241, 168.91, 0)), False)  # 68
sketch4.addGeometry(Part.ArcOfCircle(Part.Circle(Vector(25.011, 168.91, 0), Vector(0, 0, 1), 7.77), math.radians(0), math.radians(180)), False)  # 69
sketch4.addGeometry(Part.LineSegment(Vector(32.781, 168.91, 0), Vector(32.781, 154.686, 0)), False)  # 70
sketch4.addGeometry(Part.Circle(Vector(25.011, 206.883, 0), Vector(0, 0, 1), 7.77), False)  # 71
sketch4.addGeometry(Part.Circle(Vector(35.179, 210.947, 0), Vector(0, 0, 1), 1.702), False)  # 72
sketch4.addConstraint(Sketcher.Constraint("Tangent", 35, 1, 36, 1))
sketch4.addConstraint(Sketcher.Constraint("Tangent", 36, 2, 37, 2))
sketch4.addConstraint(Sketcher.Constraint("Tangent", 37, 1, 38, 1))
sketch4.addConstraint(Sketcher.Constraint("Tangent", 38, 2, 35, 2))
sketch4.addConstraint(Sketcher.Constraint("Tangent", 63, 1, 64, 1))
sketch4.addConstraint(Sketcher.Constraint("Tangent", 64, 2, 65, 2))
sketch4.addConstraint(Sketcher.Constraint("Tangent", 65, 1, 66, 1))
sketch4.addConstraint(Sketcher.Constraint("Tangent", 66, 2, 63, 2))
sketch4.addConstraint(Sketcher.Constraint("Tangent", 67, 1, 68, 1))
sketch4.addConstraint(Sketcher.Constraint("Tangent", 68, 2, 69, 2))
sketch4.addConstraint(Sketcher.Constraint("Tangent", 69, 1, 70, 1))
sketch4.addConstraint(Sketcher.Constraint("Tangent", 70, 2, 67, 2))
sketch4.addConstraint(Sketcher.Constraint("Vertical", 0))
sketch4.addConstraint(Sketcher.Constraint("Horizontal", 1))
sketch4.addConstraint(Sketcher.Constraint("Vertical", 2))
sketch4.addConstraint(Sketcher.Constraint("Horizontal", 3))
sketch4.addConstraint(Sketcher.Constraint("Vertical", 5))
sketch4.addConstraint(Sketcher.Constraint("Horizontal", 6))
sketch4.addConstraint(Sketcher.Constraint("Vertical", 7))
sketch4.addConstraint(Sketcher.Constraint("Horizontal", 8))
sketch4.addConstraint(Sketcher.Constraint("Vertical", 9))
sketch4.addConstraint(Sketcher.Constraint("Horizontal", 10))
sketch4.addConstraint(Sketcher.Constraint("Vertical", 11))
sketch4.addConstraint(Sketcher.Constraint("Horizontal", 12))
sketch4.addConstraint(Sketcher.Constraint("Horizontal", 13))
sketch4.addConstraint(Sketcher.Constraint("Vertical", 14))
sketch4.addConstraint(Sketcher.Constraint("Horizontal", 15))
sketch4.addConstraint(Sketcher.Constraint("Vertical", 16))
sketch4.addConstraint(Sketcher.Constraint("Vertical", 17))
sketch4.addConstraint(Sketcher.Constraint("Horizontal", 18))
sketch4.addConstraint(Sketcher.Constraint("Vertical", 19))
sketch4.addConstraint(Sketcher.Constraint("Horizontal", 20))
sketch4.addConstraint(Sketcher.Constraint("Vertical", 21))
sketch4.addConstraint(Sketcher.Constraint("Horizontal", 22))
sketch4.addConstraint(Sketcher.Constraint("Vertical", 23))
sketch4.addConstraint(Sketcher.Constraint("Horizontal", 24))
sketch4.addConstraint(Sketcher.Constraint("Horizontal", 25))
sketch4.addConstraint(Sketcher.Constraint("Vertical", 26))
sketch4.addConstraint(Sketcher.Constraint("Horizontal", 27))
sketch4.addConstraint(Sketcher.Constraint("Vertical", 28))
sketch4.addConstraint(Sketcher.Constraint("Horizontal", 29))
sketch4.addConstraint(Sketcher.Constraint("Vertical", 30))
sketch4.addConstraint(Sketcher.Constraint("Horizontal", 31))
sketch4.addConstraint(Sketcher.Constraint("Vertical", 32))
sketch4.addConstraint(Sketcher.Constraint("Vertical", 36))
sketch4.addConstraint(Sketcher.Constraint("Vertical", 38))
sketch4.addConstraint(Sketcher.Constraint("Vertical", 39))
sketch4.addConstraint(Sketcher.Constraint("Horizontal", 40))
sketch4.addConstraint(Sketcher.Constraint("Vertical", 41))
sketch4.addConstraint(Sketcher.Constraint("Horizontal", 42))
sketch4.addConstraint(Sketcher.Constraint("Vertical", 43))
sketch4.addConstraint(Sketcher.Constraint("Horizontal", 44))
sketch4.addConstraint(Sketcher.Constraint("Vertical", 45))
sketch4.addConstraint(Sketcher.Constraint("Horizontal", 46))
sketch4.addConstraint(Sketcher.Constraint("Horizontal", 47))
sketch4.addConstraint(Sketcher.Constraint("Vertical", 48))
sketch4.addConstraint(Sketcher.Constraint("Horizontal", 49))
sketch4.addConstraint(Sketcher.Constraint("Vertical", 50))
sketch4.addConstraint(Sketcher.Constraint("Vertical", 51))
sketch4.addConstraint(Sketcher.Constraint("Horizontal", 52))
sketch4.addConstraint(Sketcher.Constraint("Vertical", 53))
sketch4.addConstraint(Sketcher.Constraint("Horizontal", 54))
sketch4.addConstraint(Sketcher.Constraint("Horizontal", 55))
sketch4.addConstraint(Sketcher.Constraint("Vertical", 56))
sketch4.addConstraint(Sketcher.Constraint("Horizontal", 57))
sketch4.addConstraint(Sketcher.Constraint("Vertical", 58))
sketch4.addConstraint(Sketcher.Constraint("Horizontal", 59))
sketch4.addConstraint(Sketcher.Constraint("Vertical", 60))
sketch4.addConstraint(Sketcher.Constraint("Horizontal", 61))
sketch4.addConstraint(Sketcher.Constraint("Vertical", 62))
sketch4.addConstraint(Sketcher.Constraint("Vertical", 64))
sketch4.addConstraint(Sketcher.Constraint("Vertical", 66))
sketch4.addConstraint(Sketcher.Constraint("Vertical", 68))
sketch4.addConstraint(Sketcher.Constraint("Vertical", 70))
sketch4.addConstraint(Sketcher.Constraint("Coincident", 4, 3, -1, 1))
sketch4.addConstraint(Sketcher.Constraint("Equal", 4, 34))
sketch4.addConstraint(Sketcher.Constraint("Equal", 33, 35))
sketch4.addConstraint(Sketcher.Constraint("Equal", 37, 63))
sketch4.addConstraint(Sketcher.Constraint("Equal", 65, 67))
sketch4.addConstraint(Sketcher.Constraint("Equal", 69, 71))
sketch4.addConstraint(Sketcher.Constraint("Equal", 34, 72))
sketch4.addConstraint(Sketcher.Constraint("PointOnObject", 34, 3, -1))
sketch4.addConstraint(Sketcher.Constraint("Vertical", 33, 3, 35, 3))
sketch4.addConstraint(Sketcher.Constraint("Vertical", 37, 3, 63, 3))
sketch4.addConstraint(Sketcher.Constraint("Vertical", 65, 3, 67, 3))
sketch4.addConstraint(Sketcher.Constraint("Vertical", 69, 3, 71, 3))
sketch4.addConstraint(Sketcher.Constraint("Vertical", 34, 3, 72, 3))
sketch4.addConstraint(Sketcher.Constraint("Vertical", 8, 2, 9, 2))
sketch4.addConstraint(Sketcher.Constraint("Vertical", 7, 2, 10, 2))
sketch4.addConstraint(Sketcher.Constraint("Vertical", 12, 2, 17, 2))
sketch4.addConstraint(Sketcher.Constraint("Vertical", 11, 2, 18, 2))
sketch4.addConstraint(Sketcher.Constraint("Vertical", 20, 2, 21, 2))
sketch4.addConstraint(Sketcher.Constraint("Vertical", 19, 2, 22, 2))
sketch4.addConstraint(Sketcher.Constraint("Vertical", 14, 2, 25, 2))
sketch4.addConstraint(Sketcher.Constraint("Vertical", 16, 2, 27, 2))
sketch4.addConstraint(Sketcher.Constraint("Vertical", 24, 2, 39, 2))
sketch4.addConstraint(Sketcher.Constraint("Vertical", 23, 2, 40, 2))
sketch4.addConstraint(Sketcher.Constraint("Vertical", 41, 2, 43, 2))
sketch4.addConstraint(Sketcher.Constraint("Vertical", 42, 2, 44, 2))
sketch4.addConstraint(Sketcher.Constraint("Vertical", 26, 2, 47, 2))
sketch4.addConstraint(Sketcher.Constraint("Vertical", 28, 2, 49, 2))
sketch4.addConstraint(Sketcher.Constraint("Vertical", 46, 2, 51, 2))
sketch4.addConstraint(Sketcher.Constraint("Vertical", 45, 2, 52, 2))
sketch4.addConstraint(Sketcher.Constraint("Vertical", 54, 2, 55, 2))
sketch4.addConstraint(Sketcher.Constraint("Vertical", 53, 2, 57, 2))
sketch4.addConstraint(Sketcher.Constraint("Vertical", 48, 2, 59, 2))
sketch4.addConstraint(Sketcher.Constraint("Vertical", 50, 2, 61, 2))
sketch4.addConstraint(Sketcher.Constraint("Equal", 7, 9))
sketch4.addConstraint(Sketcher.Constraint("Equal", 11, 17))
sketch4.addConstraint(Sketcher.Constraint("Equal", 19, 21))
sketch4.addConstraint(Sketcher.Constraint("Equal", 16, 26))
sketch4.addConstraint(Sketcher.Constraint("Equal", 23, 39))
sketch4.addConstraint(Sketcher.Constraint("Equal", 41, 43))
sketch4.addConstraint(Sketcher.Constraint("Equal", 28, 48))
sketch4.addConstraint(Sketcher.Constraint("Equal", 45, 51))
sketch4.addConstraint(Sketcher.Constraint("Equal", 53, 56))
sketch4.addConstraint(Sketcher.Constraint("Equal", 50, 60))
sketch4.addConstraint(Sketcher.Constraint("Equal", 38, 64))
sketch4.addConstraint(Sketcher.Constraint("Equal", 66, 68))
sketch4.addConstraint(Sketcher.Constraint("Diameter", 33, Q("0.6118 in")))
sketch4.addConstraint(Sketcher.Constraint("DistanceY", 36, 1, 36, 2, Q("0.56 in")))
sketch4.addConstraint(Sketcher.Constraint("Diameter", 4, 3.404))
sketch4.addConstraint(Sketcher.Constraint("DistanceX", 1, 1, 1, 2, Q("1.685 in")))
sketch4.addConstraint(Sketcher.Constraint("DistanceY", 0, 2, 0, 1, Q("8.605 in")))
sketch4.addConstraint(Sketcher.Constraint("DistanceY", -1, 1, 35, 3, Q("1.98 in")))
sketch4.addConstraint(Sketcher.Constraint("DistanceY", -1, 1, 67, 3, Q("6.09 in")))
sketch4.addConstraint(Sketcher.Constraint("DistanceX", 0, 2, -1, 1, Q("0.15 in")))
sketch4.addConstraint(Sketcher.Constraint("DistanceY", 0, 2, -1, 1, Q("0.15 in")))
sketch4.addConstraint(Sketcher.Constraint("DistanceY", 5, 1, 5, 2, Q("0.3937 in")))
sketch4.addConstraint(Sketcher.Constraint("DistanceY", 14, 2, 14, 1, Q("0.2441 in")))
sketch4.addConstraint(Sketcher.Constraint("DistanceY", 30, 1, 30, 2, Q("0.2959 in")))
sketch4.addConstraint(Sketcher.Constraint("DistanceY", -1, 1, 33, 3, Q("0.485 in")))
sketch4.addConstraint(Sketcher.Constraint("DistanceX", -1, 1, 34, 3, Q("1.385 in")))
sketch4.addConstraint(Sketcher.Constraint("DistanceY", -1, 1, 63, 3, Q("4.035 in")))
sketch4.addConstraint(Sketcher.Constraint("DistanceY", -1, 1, 71, 3, Q("8.145 in")))
sketch4.addConstraint(Sketcher.Constraint("DistanceY", -1, 1, 72, 3, Q("8.305 in")))
sketch4.addConstraint(Sketcher.Constraint("DistanceX", 6, 1, 6, 2, 12.0))
sketch4.addConstraint(Sketcher.Constraint("DistanceX", 13, 1, 13, 2, 3.54))
sketch4.addConstraint(Sketcher.Constraint("DistanceX", 29, 2, 29, 1, 9.65))
sketch4.addConstraint(Sketcher.Constraint("DistanceY", 29, 2, -1, 1, Q("0.1217 in")))
sketch4.addConstraint(Sketcher.Constraint("DistanceX", -1, 1, 37, 1, Q("1.2906 in")))
sketch4.addConstraint(Sketcher.Constraint("DistanceX", 5, 2, -1, 1, 2.293))
sketch4.addConstraint(Sketcher.Constraint("DistanceY", -1, 1, 5, 2, 20.412))
sketch4.addConstraint(Sketcher.Constraint("DistanceY", -1, 1, 9, 2, 53.305))
sketch4.addConstraint(Sketcher.Constraint("DistanceX", -1, 1, 13, 2, 17.0795))
sketch4.addConstraint(Sketcher.Constraint("DistanceY", -1, 1, 13, 2, 34.8728))
sketch4.addConstraint(Sketcher.Constraint("DistanceY", -1, 1, 17, 2, 72.609))
sketch4.addConstraint(Sketcher.Constraint("DistanceY", -1, 1, 21, 2, 105.502))
sketch4.addConstraint(Sketcher.Constraint("DistanceY", -1, 1, 25, 2, 87.07))
sketch4.addConstraint(Sketcher.Constraint("DistanceX", -1, 1, 29, 2, 14.161))
sketch4.addConstraint(Sketcher.Constraint("DistanceY", -1, 1, 39, 2, 124.806))
sketch4.addConstraint(Sketcher.Constraint("DistanceY", -1, 1, 43, 2, 147.699))
sketch4.addConstraint(Sketcher.Constraint("DistanceY", -1, 1, 47, 2, 139.2668))
sketch4.addConstraint(Sketcher.Constraint("DistanceY", -1, 1, 51, 2, 167.003))
sketch4.addConstraint(Sketcher.Constraint("DistanceY", -1, 1, 55, 2, 209.896))
sketch4.addConstraint(Sketcher.Constraint("DistanceY", -1, 1, 59, 2, 191.464))
pocket2 = body.newObject("PartDesign::Pocket", "Pocket001")
pocket2.Profile = sketch4
pocket2.Length = Q("0.12 in")

doc.recompute()
